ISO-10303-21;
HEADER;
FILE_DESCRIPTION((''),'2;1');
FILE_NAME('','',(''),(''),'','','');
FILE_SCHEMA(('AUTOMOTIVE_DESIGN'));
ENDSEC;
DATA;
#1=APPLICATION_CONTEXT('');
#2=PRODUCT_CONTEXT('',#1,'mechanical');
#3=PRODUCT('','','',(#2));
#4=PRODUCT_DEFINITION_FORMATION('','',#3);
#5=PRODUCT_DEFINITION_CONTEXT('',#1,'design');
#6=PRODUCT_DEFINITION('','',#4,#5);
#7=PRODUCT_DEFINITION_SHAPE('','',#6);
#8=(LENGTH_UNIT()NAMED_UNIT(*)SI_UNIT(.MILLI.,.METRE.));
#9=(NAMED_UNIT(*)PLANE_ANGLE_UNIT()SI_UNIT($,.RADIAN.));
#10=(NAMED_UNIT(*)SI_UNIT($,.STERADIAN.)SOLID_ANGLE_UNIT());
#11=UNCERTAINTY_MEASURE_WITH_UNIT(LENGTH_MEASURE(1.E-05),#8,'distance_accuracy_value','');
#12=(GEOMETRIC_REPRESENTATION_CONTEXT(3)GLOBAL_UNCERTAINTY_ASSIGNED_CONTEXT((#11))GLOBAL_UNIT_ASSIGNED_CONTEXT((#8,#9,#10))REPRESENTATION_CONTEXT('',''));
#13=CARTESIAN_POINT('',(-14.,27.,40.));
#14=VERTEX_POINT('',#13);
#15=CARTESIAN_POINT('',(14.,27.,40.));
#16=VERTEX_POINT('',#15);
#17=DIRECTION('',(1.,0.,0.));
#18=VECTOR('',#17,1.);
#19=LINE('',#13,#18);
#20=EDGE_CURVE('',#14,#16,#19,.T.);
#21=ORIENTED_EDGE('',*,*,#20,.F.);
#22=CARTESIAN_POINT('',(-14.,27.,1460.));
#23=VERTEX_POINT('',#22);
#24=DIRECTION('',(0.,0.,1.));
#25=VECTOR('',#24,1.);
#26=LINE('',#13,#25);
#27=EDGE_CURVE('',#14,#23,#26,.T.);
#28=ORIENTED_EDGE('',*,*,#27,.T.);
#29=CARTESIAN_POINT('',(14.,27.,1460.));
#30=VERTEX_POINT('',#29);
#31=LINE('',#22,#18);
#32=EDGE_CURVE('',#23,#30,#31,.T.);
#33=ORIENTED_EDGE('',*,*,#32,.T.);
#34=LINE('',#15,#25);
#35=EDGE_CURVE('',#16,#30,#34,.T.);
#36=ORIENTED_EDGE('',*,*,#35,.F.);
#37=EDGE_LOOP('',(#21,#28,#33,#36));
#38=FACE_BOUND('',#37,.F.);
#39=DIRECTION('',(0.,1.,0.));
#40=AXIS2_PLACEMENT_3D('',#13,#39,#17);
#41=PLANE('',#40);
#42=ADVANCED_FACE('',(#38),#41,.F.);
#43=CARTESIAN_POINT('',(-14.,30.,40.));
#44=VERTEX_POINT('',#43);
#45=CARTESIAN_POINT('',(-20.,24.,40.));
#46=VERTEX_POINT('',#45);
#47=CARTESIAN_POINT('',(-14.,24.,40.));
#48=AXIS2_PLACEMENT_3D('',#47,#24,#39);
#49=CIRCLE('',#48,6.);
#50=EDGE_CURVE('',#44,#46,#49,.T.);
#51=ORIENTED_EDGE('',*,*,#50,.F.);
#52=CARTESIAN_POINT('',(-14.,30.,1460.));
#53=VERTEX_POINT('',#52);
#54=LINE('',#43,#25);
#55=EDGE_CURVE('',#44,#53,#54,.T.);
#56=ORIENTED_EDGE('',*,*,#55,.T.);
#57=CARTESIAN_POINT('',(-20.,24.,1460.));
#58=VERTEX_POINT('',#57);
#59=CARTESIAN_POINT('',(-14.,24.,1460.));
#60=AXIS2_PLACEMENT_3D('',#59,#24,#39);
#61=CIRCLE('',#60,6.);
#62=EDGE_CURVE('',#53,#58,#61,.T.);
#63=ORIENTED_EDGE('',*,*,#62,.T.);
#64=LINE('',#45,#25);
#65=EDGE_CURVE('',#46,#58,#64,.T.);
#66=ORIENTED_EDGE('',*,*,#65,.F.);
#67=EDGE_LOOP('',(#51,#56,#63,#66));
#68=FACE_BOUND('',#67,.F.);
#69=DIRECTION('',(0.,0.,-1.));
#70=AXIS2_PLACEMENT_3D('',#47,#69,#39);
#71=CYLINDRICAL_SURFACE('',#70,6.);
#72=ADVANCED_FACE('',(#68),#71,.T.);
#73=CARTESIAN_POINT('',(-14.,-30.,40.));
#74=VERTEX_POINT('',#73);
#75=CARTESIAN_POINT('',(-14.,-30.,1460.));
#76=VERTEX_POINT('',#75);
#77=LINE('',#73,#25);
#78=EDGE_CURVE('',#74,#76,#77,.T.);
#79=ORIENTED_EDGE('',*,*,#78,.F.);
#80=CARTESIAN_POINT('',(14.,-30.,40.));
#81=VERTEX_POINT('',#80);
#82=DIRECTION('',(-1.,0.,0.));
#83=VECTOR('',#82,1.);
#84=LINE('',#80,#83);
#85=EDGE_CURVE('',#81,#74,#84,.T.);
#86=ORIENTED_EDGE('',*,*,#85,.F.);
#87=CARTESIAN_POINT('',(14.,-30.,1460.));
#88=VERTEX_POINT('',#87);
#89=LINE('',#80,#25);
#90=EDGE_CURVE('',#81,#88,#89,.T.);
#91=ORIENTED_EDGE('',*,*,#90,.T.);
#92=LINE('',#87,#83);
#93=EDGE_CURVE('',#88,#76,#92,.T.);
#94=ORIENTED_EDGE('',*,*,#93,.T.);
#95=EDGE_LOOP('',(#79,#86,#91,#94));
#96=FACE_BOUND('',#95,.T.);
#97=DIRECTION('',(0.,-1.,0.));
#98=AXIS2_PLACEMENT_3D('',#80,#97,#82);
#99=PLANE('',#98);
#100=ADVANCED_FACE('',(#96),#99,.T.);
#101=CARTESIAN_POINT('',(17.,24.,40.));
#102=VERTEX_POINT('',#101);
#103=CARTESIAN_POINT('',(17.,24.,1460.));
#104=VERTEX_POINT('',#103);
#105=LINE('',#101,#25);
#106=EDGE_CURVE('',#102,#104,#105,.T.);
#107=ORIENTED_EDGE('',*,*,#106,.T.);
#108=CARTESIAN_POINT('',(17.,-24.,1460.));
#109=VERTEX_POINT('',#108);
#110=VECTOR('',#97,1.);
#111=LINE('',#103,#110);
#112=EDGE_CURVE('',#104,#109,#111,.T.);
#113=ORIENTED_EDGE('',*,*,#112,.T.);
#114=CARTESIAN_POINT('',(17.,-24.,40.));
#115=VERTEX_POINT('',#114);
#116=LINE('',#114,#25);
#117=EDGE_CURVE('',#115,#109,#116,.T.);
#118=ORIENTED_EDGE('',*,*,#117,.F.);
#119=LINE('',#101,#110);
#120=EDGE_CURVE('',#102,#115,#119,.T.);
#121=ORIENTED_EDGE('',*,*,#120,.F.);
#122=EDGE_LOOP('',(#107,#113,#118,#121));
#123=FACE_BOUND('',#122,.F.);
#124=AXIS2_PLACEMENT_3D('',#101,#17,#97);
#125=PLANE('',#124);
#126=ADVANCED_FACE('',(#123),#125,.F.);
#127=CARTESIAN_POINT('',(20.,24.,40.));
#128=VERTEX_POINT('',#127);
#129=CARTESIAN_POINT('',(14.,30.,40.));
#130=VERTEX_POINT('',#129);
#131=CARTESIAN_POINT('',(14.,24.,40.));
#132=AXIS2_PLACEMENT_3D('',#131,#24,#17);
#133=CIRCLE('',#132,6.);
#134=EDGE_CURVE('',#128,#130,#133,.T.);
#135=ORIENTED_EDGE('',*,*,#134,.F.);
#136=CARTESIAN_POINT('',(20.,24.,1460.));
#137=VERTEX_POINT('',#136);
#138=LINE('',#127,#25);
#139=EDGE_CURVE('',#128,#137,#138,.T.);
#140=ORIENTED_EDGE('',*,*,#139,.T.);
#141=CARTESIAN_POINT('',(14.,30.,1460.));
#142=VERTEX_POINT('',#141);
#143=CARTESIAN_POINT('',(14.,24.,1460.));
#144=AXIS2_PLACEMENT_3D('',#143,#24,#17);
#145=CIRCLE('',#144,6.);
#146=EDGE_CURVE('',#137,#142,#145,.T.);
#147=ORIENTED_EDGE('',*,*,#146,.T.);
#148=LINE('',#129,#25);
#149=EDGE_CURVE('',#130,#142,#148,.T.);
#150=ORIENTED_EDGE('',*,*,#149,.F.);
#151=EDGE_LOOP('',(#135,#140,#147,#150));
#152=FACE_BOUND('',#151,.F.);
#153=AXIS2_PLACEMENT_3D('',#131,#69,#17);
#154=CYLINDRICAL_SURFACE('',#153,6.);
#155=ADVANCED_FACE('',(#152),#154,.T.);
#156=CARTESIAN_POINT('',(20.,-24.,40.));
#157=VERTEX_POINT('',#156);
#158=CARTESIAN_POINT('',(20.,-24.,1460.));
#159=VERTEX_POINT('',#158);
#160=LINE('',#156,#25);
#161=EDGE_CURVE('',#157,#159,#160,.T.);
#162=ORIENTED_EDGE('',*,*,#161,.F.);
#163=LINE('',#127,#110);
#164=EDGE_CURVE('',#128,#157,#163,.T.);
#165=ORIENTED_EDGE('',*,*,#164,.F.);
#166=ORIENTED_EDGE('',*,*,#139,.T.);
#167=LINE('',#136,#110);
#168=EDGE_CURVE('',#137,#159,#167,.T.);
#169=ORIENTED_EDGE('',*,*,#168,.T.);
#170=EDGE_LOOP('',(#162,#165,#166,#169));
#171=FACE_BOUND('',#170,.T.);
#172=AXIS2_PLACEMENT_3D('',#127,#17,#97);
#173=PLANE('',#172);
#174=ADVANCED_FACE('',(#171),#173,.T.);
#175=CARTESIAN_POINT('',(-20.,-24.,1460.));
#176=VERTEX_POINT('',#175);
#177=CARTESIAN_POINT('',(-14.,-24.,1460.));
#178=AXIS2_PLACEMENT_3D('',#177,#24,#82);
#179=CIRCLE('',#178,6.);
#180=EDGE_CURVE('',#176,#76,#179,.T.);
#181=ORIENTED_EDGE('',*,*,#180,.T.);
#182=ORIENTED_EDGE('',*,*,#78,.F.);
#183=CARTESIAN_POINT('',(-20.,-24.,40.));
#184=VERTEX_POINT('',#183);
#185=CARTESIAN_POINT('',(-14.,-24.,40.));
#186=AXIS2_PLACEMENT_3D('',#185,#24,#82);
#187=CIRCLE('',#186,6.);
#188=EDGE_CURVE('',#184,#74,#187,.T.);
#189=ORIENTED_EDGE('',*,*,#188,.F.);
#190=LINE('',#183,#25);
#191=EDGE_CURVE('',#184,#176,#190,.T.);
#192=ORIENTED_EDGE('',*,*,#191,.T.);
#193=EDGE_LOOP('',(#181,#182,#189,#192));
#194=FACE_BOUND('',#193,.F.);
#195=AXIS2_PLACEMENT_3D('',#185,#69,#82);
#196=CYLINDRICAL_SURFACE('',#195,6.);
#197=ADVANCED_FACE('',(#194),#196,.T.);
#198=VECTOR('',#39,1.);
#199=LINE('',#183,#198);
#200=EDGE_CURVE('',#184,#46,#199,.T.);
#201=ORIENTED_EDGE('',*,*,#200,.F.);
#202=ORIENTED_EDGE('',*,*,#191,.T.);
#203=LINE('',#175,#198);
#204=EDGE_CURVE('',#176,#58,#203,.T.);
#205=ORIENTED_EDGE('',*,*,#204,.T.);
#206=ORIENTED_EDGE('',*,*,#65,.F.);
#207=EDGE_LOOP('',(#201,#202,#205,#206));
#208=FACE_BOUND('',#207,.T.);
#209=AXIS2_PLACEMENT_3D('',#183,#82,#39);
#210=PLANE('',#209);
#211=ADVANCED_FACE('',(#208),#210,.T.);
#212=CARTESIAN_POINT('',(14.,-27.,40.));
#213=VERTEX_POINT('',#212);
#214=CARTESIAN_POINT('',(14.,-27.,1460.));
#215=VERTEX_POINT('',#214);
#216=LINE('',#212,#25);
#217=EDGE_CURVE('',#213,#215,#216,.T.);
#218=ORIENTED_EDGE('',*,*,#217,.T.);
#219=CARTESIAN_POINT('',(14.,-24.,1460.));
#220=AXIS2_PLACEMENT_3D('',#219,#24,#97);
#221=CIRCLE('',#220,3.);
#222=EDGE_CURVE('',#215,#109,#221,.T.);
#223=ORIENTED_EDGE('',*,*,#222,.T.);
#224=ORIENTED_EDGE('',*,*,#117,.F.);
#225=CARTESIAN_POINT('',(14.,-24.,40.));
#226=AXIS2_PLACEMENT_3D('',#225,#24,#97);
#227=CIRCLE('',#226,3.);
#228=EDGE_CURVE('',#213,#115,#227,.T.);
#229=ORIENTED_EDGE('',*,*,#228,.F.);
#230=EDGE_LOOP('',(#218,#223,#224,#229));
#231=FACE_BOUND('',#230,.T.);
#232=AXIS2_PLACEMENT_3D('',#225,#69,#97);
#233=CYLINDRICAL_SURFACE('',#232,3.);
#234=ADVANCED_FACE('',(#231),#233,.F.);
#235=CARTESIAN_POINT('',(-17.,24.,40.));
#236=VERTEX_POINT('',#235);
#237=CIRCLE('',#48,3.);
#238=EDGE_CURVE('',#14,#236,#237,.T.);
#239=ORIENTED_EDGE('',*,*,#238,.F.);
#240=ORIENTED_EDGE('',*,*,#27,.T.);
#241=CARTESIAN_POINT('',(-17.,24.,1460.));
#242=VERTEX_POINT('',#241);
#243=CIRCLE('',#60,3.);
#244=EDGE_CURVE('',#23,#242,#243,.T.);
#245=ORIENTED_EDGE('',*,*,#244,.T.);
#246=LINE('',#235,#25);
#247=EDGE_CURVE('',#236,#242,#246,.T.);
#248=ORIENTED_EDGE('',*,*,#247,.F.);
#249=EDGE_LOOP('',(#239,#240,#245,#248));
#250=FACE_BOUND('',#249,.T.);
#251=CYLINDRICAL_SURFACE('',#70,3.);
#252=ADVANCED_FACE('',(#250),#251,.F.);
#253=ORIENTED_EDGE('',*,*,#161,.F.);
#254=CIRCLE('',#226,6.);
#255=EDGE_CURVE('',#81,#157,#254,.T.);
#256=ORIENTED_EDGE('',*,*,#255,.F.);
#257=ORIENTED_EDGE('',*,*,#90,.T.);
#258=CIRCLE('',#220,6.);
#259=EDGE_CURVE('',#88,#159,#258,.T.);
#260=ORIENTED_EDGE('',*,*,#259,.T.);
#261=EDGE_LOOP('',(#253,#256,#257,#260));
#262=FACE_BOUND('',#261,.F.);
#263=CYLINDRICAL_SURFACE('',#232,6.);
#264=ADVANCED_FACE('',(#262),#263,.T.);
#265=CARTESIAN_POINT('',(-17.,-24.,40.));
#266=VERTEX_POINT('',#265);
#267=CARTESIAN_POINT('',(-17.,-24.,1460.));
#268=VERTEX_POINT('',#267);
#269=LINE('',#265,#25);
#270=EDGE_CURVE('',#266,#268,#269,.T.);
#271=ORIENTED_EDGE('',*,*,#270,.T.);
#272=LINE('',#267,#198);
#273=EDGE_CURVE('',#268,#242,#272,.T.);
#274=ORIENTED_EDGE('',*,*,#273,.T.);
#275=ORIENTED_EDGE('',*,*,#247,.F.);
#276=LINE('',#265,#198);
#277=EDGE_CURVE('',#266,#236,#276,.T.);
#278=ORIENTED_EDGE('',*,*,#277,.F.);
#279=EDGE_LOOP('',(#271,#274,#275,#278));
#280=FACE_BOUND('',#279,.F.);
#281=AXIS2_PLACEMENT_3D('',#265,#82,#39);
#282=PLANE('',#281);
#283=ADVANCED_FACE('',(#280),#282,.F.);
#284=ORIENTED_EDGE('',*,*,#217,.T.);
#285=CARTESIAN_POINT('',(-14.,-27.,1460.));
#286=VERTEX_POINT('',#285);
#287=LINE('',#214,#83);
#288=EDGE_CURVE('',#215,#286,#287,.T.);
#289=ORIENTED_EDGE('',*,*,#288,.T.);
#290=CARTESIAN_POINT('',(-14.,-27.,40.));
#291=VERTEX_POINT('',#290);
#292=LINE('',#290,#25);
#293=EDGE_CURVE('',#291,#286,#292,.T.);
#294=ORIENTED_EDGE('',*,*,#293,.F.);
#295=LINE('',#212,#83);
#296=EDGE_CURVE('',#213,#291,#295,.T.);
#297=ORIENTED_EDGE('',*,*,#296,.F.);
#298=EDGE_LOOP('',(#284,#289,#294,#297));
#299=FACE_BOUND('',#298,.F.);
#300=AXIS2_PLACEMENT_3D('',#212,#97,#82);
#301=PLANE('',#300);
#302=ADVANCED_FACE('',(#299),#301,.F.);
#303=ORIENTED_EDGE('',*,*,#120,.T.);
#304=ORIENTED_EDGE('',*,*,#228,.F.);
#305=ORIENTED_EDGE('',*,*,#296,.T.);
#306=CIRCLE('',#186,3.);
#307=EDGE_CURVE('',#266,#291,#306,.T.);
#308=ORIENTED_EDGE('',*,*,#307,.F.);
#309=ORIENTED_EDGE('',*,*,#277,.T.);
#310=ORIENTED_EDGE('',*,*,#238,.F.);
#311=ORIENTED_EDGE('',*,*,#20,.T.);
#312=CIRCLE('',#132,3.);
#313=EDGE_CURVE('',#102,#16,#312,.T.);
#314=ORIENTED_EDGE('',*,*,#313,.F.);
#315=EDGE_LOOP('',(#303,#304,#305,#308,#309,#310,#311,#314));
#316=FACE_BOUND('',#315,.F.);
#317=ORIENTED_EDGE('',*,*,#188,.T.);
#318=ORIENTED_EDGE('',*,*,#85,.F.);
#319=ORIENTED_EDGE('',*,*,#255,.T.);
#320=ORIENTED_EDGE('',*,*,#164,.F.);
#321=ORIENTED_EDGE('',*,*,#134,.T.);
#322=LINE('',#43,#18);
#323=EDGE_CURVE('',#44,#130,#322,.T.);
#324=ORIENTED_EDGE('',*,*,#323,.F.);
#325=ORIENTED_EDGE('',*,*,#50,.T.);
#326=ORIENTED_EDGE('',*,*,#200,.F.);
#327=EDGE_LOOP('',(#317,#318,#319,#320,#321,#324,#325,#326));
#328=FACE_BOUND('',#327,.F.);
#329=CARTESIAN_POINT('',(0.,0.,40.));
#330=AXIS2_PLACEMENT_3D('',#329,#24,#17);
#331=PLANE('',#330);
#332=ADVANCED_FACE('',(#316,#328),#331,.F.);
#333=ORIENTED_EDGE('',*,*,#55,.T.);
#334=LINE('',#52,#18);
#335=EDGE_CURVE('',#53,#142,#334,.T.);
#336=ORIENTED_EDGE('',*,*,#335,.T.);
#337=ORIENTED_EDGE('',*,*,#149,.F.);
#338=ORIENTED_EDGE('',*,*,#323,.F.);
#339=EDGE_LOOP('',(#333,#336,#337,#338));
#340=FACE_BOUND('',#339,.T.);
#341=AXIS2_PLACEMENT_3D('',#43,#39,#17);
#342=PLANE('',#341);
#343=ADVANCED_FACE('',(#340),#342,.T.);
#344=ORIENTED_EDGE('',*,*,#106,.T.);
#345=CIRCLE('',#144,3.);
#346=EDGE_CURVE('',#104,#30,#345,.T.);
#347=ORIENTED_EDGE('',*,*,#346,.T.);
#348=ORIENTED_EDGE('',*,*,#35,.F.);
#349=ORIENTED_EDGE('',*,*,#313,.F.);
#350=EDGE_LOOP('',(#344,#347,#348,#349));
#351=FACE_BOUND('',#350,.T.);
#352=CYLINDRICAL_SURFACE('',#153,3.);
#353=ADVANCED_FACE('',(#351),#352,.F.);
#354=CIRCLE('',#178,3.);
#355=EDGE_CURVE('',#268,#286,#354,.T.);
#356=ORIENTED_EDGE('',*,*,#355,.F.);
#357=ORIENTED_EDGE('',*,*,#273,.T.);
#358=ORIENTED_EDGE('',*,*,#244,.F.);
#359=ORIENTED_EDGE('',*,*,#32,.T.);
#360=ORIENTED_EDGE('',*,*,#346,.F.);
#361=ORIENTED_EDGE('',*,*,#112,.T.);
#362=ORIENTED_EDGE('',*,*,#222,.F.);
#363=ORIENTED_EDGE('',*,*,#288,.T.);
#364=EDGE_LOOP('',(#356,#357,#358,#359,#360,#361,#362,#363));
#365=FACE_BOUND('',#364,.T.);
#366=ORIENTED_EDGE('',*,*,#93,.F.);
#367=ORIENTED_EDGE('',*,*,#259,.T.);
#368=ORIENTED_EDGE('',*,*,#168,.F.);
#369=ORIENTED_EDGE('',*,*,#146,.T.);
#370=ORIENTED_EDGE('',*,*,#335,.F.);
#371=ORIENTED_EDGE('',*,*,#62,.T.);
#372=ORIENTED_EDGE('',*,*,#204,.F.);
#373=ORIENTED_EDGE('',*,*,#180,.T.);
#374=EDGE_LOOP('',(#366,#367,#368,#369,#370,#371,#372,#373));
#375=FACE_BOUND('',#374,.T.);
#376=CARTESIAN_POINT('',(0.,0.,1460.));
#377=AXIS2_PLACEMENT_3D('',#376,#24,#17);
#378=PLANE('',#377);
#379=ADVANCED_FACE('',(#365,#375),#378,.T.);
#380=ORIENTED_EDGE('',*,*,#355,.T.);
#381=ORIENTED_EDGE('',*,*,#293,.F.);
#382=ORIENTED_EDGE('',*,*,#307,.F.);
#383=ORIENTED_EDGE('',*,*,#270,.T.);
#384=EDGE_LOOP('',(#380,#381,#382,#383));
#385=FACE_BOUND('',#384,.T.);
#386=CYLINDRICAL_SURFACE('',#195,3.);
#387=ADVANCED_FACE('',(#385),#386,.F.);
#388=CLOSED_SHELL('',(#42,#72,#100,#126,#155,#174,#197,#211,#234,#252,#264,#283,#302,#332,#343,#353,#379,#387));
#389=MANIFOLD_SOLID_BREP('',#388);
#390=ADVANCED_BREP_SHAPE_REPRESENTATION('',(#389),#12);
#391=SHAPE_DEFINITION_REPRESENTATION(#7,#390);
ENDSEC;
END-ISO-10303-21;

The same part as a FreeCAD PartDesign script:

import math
import FreeCAD as App
import Part
import Sketcher

V = App.Vector

doc = App.newDocument("Part")
params = doc.addObject("Spreadsheet::Sheet", "Params")
for row, (alias, value) in enumerate([
    ("sketch1_radius", "6 mm"),
    ("sketch1_radius2", "3 mm"),
    ("pad1_length", "1420 mm"),
], start=1):
    params.set(f"A{row}", alias)
    params.set(f"B{row}", "=" + value)
    params.setAlias(f"B{row}", alias)

body = doc.addObject("PartDesign::Body", "Body")

sketch1 = body.newObject("Sketcher::SketchObject", "Sketch")
sketch1.AttachmentSupport = (doc.getObject("XY_Plane"), [""])
sketch1.MapMode = "FlatFace"
sketch1.AttachmentOffset = App.Placement(V(0, 0, 40), App.Rotation())
sketch1.addGeometry(Part.LineSegment(V(-20, 24, 0), V(-20, -24, 0)), False)
sketch1.addGeometry(Part.ArcOfCircle(Part.Circle(V(-14, -24, 0), V(0, 0, 1), 6), math.radians(180), math.radians(270)), False)
sketch1.addGeometry(Part.LineSegment(V(-14, -30, 0), V(14, -30, 0)), False)
sketch1.addGeometry(Part.ArcOfCircle(Part.Circle(V(14, -24, 0), V(0, 0, 1), 6), math.radians(-90), math.radians(0)), False)
sketch1.addGeometry(Part.LineSegment(V(20, -24, 0), V(20, 24, 0)), False)
sketch1.addGeometry(Part.ArcOfCircle(Part.Circle(V(14, 24, 0), V(0, 0, 1), 6), math.radians(0), math.radians(90)), False)
sketch1.addGeometry(Part.LineSegment(V(14, 30, 0), V(-14, 30, 0)), False)
sketch1.addGeometry(Part.ArcOfCircle(Part.Circle(V(-14, 24, 0), V(0, 0, 1), 6), math.radians(90), math.radians(180)), False)
sketch1.addGeometry(Part.ArcOfCircle(Part.Circle(V(-14, 24, 0), V(0, 0, 1), 3), math.radians(90), math.radians(180)), False)
sketch1.addGeometry(Part.LineSegment(V(-14, 27, 0), V(14, 27, 0)), False)
sketch1.addGeometry(Part.ArcOfCircle(Part.Circle(V(14, 24, 0), V(0, 0, 1), 3), math.radians(0), math.radians(90)), False)
sketch1.addGeometry(Part.LineSegment(V(17, 24, 0), V(17, -24, 0)), False)
sketch1.addGeometry(Part.ArcOfCircle(Part.Circle(V(14, -24, 0), V(0, 0, 1), 3), math.radians(-90), math.radians(0)), False)
sketch1.addGeometry(Part.LineSegment(V(14, -27, 0), V(-14, -27, 0)), False)
sketch1.addGeometry(Part.ArcOfCircle(Part.Circle(V(-14, -24, 0), V(0, 0, 1), 3), math.radians(180), math.radians(270)), False)
sketch1.addGeometry(Part.LineSegment(V(-17, -24, 0), V(-17, 24, 0)), False)
sketch1.addConstraint(Sketcher.Constraint("Tangent", 0, 2, 1, 1))
sketch1.addConstraint(Sketcher.Constraint("Tangent", 1, 2, 2, 1))
sketch1.addConstraint(Sketcher.Constraint("Tangent", 2, 2, 3, 1))
sketch1.addConstraint(Sketcher.Constraint("Tangent", 3, 2, 4, 1))
sketch1.addConstraint(Sketcher.Constraint("Tangent", 4, 2, 5, 1))
sketch1.addConstraint(Sketcher.Constraint("Tangent", 5, 2, 6, 1))
sketch1.addConstraint(Sketcher.Constraint("Tangent", 6, 2, 7, 1))
sketch1.addConstraint(Sketcher.Constraint("Tangent", 7, 2, 0, 1))
sketch1.addConstraint(Sketcher.Constraint("Tangent", 8, 1, 9, 1))
sketch1.addConstraint(Sketcher.Constraint("Tangent", 9, 2, 10, 2))
sketch1.addConstraint(Sketcher.Constraint("Tangent", 10, 1, 11, 1))
sketch1.addConstraint(Sketcher.Constraint("Tangent", 11, 2, 12, 2))
sketch1.addConstraint(Sketcher.Constraint("Tangent", 12, 1, 13, 1))
sketch1.addConstraint(Sketcher.Constraint("Tangent", 13, 2, 14, 2))
sketch1.addConstraint(Sketcher.Constraint("Tangent", 14, 1, 15, 1))
sketch1.addConstraint(Sketcher.Constraint("Tangent", 15, 2, 8, 2))
sketch1.addConstraint(Sketcher.Constraint("Vertical", 0))
sketch1.addConstraint(Sketcher.Constraint("Horizontal", 2))
sketch1.addConstraint(Sketcher.Constraint("Vertical", 4))
sketch1.addConstraint(Sketcher.Constraint("Horizontal", 6))
sketch1.addConstraint(Sketcher.Constraint("Horizontal", 9))
sketch1.addConstraint(Sketcher.Constraint("Vertical", 11))
sketch1.addConstraint(Sketcher.Constraint("Horizontal", 13))
sketch1.addConstraint(Sketcher.Constraint("Vertical", 15))
sketch1.addConstraint(Sketcher.Constraint("Coincident", 8, 3, 7, 3))
sketch1.addConstraint(Sketcher.Constraint("Coincident", 10, 3, 5, 3))
sketch1.addConstraint(Sketcher.Constraint("Coincident", 12, 3, 3, 3))
sketch1.addConstraint(Sketcher.Constraint("Equal", 1, 3))
sketch1.addConstraint(Sketcher.Constraint("Equal", 3, 5))
sketch1.addConstraint(Sketcher.Constraint("Equal", 5, 7))
sketch1.addConstraint(Sketcher.Constraint("Equal", 12, 14))
sketch1.addConstraint(Sketcher.Constraint("Symmetric", 1, 3, 5, 3, -1, 1))
sketch1.addConstraint(Sketcher.Constraint("Radius", 1, 6.0))
sketch1.addConstraint(Sketcher.Constraint("Radius", 8, 3.0))
sketch1.addConstraint(Sketcher.Constraint("DistanceX", 0, 2, -1, 1, 20.0))
sketch1.addConstraint(Sketcher.Constraint("DistanceY", 1, 2, -1, 1, 30.0))
sketch1.setExpression("Constraints[32]", "Params.sketch1_radius")
sketch1.setExpression("Constraints[33]", "Params.sketch1_radius2")
pad1 = body.newObject("PartDesign::Pad", "Pad")
pad1.Profile = sketch1
pad1.setExpression("Length", "Params.pad1_length")

doc.recompute()
